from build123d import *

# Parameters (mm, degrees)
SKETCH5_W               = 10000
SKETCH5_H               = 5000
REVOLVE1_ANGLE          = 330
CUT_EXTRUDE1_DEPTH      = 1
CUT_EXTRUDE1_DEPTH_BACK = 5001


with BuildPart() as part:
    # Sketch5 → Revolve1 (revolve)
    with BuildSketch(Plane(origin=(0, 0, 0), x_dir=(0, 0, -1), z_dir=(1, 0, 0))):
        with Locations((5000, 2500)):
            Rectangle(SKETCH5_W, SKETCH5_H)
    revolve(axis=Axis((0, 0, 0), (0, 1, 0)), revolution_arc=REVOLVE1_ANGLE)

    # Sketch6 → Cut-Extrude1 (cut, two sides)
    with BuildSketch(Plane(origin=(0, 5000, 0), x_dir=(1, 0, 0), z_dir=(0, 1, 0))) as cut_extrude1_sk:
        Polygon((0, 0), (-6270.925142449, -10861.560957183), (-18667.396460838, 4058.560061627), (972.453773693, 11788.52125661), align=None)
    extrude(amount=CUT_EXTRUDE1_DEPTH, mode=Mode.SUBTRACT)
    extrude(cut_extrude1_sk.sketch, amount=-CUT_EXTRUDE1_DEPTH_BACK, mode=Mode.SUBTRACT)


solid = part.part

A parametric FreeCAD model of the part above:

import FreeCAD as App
import Part
import Sketcher

V = App.Vector
Q = App.Units.Quantity

doc = App.newDocument("Part")
params = doc.addObject("Spreadsheet::Sheet", "Params")
for row, (alias, value) in enumerate([
    ("sketch1_width", "5000 mm"),
    ("sketch1_height", "10000 mm"),
    ("revolution_angle", "330 deg"),
], start=1):
    params.set(f"A{row}", alias)
    params.set(f"B{row}", "=" + value)
    params.setAlias(f"B{row}", alias)

body = doc.addObject("PartDesign::Body", "Body")

# Sketch on YZ plane
sketch1 = doc.addObject("Sketcher::SketchObject", "Sketch")
body.addObject(sketch1)
sketch1.AttachmentSupport = (doc.YZ_Plane, [""])
sketch1.MapMode = "FlatFace"
sketch1.addGeometry(Part.LineSegment(V(5000, 0, 0), V(0, 0, 0)), False)
sketch1.addGeometry(Part.LineSegment(V(0, 0, 0), V(0, -10000, 0)), False)
sketch1.addGeometry(Part.LineSegment(V(0, -10000, 0), V(5000, -10000, 0)), False)
sketch1.addGeometry(Part.LineSegment(V(5000, -10000, 0), V(5000, 0, 0)), False)
sketch1.addConstraint(Sketcher.Constraint("Coincident", 0, 2, 1, 1))
sketch1.addConstraint(Sketcher.Constraint("Coincident", 1, 2, 2, 1))
sketch1.addConstraint(Sketcher.Constraint("Coincident", 2, 2, 3, 1))
sketch1.addConstraint(Sketcher.Constraint("Coincident", 3, 2, 0, 1))
sketch1.addConstraint(Sketcher.Constraint("Horizontal", 0))
sketch1.addConstraint(Sketcher.Constraint("Vertical", 1))
sketch1.addConstraint(Sketcher.Constraint("Horizontal", 2))
sketch1.addConstraint(Sketcher.Constraint("Vertical", 3))
sketch1.addConstraint(Sketcher.Constraint("Coincident", 0, 2, -1, 1))
sketch1.addConstraint(Sketcher.Constraint("DistanceX", 0, 2, 0, 1, Q("5000 mm")))
sketch1.addConstraint(Sketcher.Constraint("DistanceY", 1, 2, 1, 1, Q("10000 mm")))
sketch1.setExpression("Constraints[9]", "Params.sketch1_width")
sketch1.setExpression("Constraints[10]", "Params.sketch1_height")
revolution = doc.addObject("PartDesign::Revolution", "Revolution")
body.addObject(revolution)
revolution.Profile = sketch1
revolution.ReferenceAxis = (sketch1, ["H_Axis"])
revolution.setExpression("Angle", "Params.revolution_angle")

# Sketch on XZ plane
sketch2 = doc.addObject("Sketcher::SketchObject", "Sketch001")
body.addObject(sketch2)
sketch2.AttachmentSupport = (doc.XZ_Plane, [""])
sketch2.MapMode = "FlatFace"
sketch2.AttachmentOffset = App.Placement(V(0, 0, -5000), App.Rotation())
sketch2.addGeometry(Part.LineSegment(V(-6271, 10862, 0), V(0, 0, 0)), False)
sketch2.addGeometry(Part.LineSegment(V(0, 0, 0), V(972, -11789, 0)), False)
sketch2.addGeometry(Part.LineSegment(V(972, -11789, 0), V(-18667, -4059, 0)), False)
sketch2.addGeometry(Part.LineSegment(V(-18667, -4059, 0), V(-6271, 10862, 0)), False)
sketch2.addConstraint(Sketcher.Constraint("Coincident", 0, 2, 1, 1))
sketch2.addConstraint(Sketcher.Constraint("Coincident", 1, 2, 2, 1))
sketch2.addConstraint(Sketcher.Constraint("Coincident", 2, 2, 3, 1))
sketch2.addConstraint(Sketcher.Constraint("Coincident", 3, 2, 0, 1))
sketch2.addConstraint(Sketcher.Constraint("Coincident", 0, 2, -1, 1))
sketch2.addConstraint(Sketcher.Constraint("Angle", 0, Q("-60 deg")))
sketch2.addConstraint(Sketcher.Constraint("Distance", 1, Q("11828.562878 mm")))
sketch2.addConstraint(Sketcher.Constraint("DistanceX", 2, 2, -1, 1, Q("18667.396461 mm")))
sketch2.addConstraint(Sketcher.Constraint("DistanceY", 2, 2, -1, 1, Q("4058.560062 mm")))
sketch2.addConstraint(Sketcher.Constraint("DistanceX", 2, 2, 3, 2, Q("12396.471318 mm")))
sketch2.addConstraint(Sketcher.Constraint("Distance", 2, Q("21106.302786 mm")))
pocket1 = doc.addObject("PartDesign::Pocket", "Pocket")
body.addObject(pocket1)
pocket1.Profile = sketch2
pocket1.Type = "ThroughAll"
pocket1.Midplane = True

doc.recompute()
